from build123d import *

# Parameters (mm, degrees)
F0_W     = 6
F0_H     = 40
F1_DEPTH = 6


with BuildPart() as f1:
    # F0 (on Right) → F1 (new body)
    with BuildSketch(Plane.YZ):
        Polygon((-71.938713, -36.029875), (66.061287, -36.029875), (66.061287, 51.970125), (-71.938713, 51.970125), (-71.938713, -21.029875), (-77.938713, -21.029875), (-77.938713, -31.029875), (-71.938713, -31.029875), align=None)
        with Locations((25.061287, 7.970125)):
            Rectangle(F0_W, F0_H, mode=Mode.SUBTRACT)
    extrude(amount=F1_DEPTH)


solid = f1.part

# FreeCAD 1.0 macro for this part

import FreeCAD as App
import Part
import Sketcher
Q = App.Units.Quantity


def add_polygon(sketch, points):
    """Adds a closed chain of lines whose ends are joined by coincident constraints."""
    first, n = sketch.GeometryCount, len(points)
    for a, b in zip(points, points[1:] + points[:1]):
        sketch.addGeometry(Part.LineSegment(App.Vector(*a, 0), App.Vector(*b, 0)), False)
    for i in range(n):
        sketch.addConstraint(Sketcher.Constraint("Coincident", first + i, 2, first + (i + 1) % n, 1))

doc = App.newDocument("Part")
params = doc.addObject("Spreadsheet::Sheet", "Params")
for row, (alias, value) in enumerate([
    ("sketch1_width", "138 mm"),
    ("sketch1_width2", "6 mm"),
    ("sketch1_height", "88 mm"),
    ("sketch1_height2", "73 mm"),
    ("sketch1_height3", "10 mm"),
    ("pad1_length", "6 mm"),
], start=1):
    params.set(f"A{row}", alias)
    params.set(f"B{row}", "=" + value)
    params.setAlias(f"B{row}", alias)

body = doc.addObject("PartDesign::Body", "Body")

# Sketch on YZ plane
sketch1 = doc.addObject("Sketcher::SketchObject", "Sketch")
body.addObject(sketch1)
sketch1.AttachmentSupport = (doc.YZ_Plane, [""])
sketch1.MapMode = "FlatFace"
add_polygon(sketch1, [(-71.9, -36), (66.1, -36), (66.1, 52), (-71.9, 52), (-71.9, -21), (-77.9, -21), (-77.9, -31), (-71.9, -31)])  # lines 0-7
add_polygon(sketch1, [(28.1, -12), (22.1, -12), (22.1, 28), (28.1, 28)])  # lines 8-11
sketch1.addConstraint([
    Sketcher.Constraint("Horizontal", 0),
    Sketcher.Constraint("Vertical", 1),
    Sketcher.Constraint("Horizontal", 2),
    Sketcher.Constraint("Vertical", 3),
    Sketcher.Constraint("Horizontal", 4),
    Sketcher.Constraint("Vertical", 5),
    Sketcher.Constraint("Horizontal", 6),
    Sketcher.Constraint("Vertical", 7),
    Sketcher.Constraint("Horizontal", 8),
    Sketcher.Constraint("Vertical", 9),
    Sketcher.Constraint("Horizontal", 10),
    Sketcher.Constraint("Vertical", 11),
    Sketcher.Constraint("Vertical", 3, 2, 6, 2),
    Sketcher.Constraint("Equal", 6, 8),
    Sketcher.Constraint("DistanceX", 0, 1, 0, 2, Q("138 mm")),
    Sketcher.Constraint("DistanceX", 4, 2, 4, 1, Q("6 mm")),
    Sketcher.Constraint("DistanceY", 1, 1, 1, 2, Q("88 mm")),
    Sketcher.Constraint("DistanceY", 3, 2, 3, 1, Q("73 mm")),
    Sketcher.Constraint("DistanceY", 5, 2, 5, 1, Q("10 mm")),
    Sketcher.Constraint("DistanceY", 9, 1, 9, 2, Q("40 mm")),
    Sketcher.Constraint("DistanceX", 8, 2, 0, 2, Q("44 mm")),
    Sketcher.Constraint("DistanceY", 0, 2, 8, 2, Q("24 mm")),
    Sketcher.Constraint("DistanceX", -1, 1, 0, 2, Q("66.061287 mm")),
    Sketcher.Constraint("DistanceY", 0, 2, -1, 1, Q("36.029875 mm")),
])
sketch1.setExpression("Constraints[26]", "Params.sketch1_width")
sketch1.setExpression("Constraints[27]", "Params.sketch1_width2")
sketch1.setExpression("Constraints[28]", "Params.sketch1_height")
sketch1.setExpression("Constraints[29]", "Params.sketch1_height2")
sketch1.setExpression("Constraints[30]", "Params.sketch1_height3")
pad1 = doc.addObject("PartDesign::Pad", "Pad")
body.addObject(pad1)
pad1.Profile = sketch1
pad1.setExpression("Length", "Params.pad1_length")

doc.recompute()
